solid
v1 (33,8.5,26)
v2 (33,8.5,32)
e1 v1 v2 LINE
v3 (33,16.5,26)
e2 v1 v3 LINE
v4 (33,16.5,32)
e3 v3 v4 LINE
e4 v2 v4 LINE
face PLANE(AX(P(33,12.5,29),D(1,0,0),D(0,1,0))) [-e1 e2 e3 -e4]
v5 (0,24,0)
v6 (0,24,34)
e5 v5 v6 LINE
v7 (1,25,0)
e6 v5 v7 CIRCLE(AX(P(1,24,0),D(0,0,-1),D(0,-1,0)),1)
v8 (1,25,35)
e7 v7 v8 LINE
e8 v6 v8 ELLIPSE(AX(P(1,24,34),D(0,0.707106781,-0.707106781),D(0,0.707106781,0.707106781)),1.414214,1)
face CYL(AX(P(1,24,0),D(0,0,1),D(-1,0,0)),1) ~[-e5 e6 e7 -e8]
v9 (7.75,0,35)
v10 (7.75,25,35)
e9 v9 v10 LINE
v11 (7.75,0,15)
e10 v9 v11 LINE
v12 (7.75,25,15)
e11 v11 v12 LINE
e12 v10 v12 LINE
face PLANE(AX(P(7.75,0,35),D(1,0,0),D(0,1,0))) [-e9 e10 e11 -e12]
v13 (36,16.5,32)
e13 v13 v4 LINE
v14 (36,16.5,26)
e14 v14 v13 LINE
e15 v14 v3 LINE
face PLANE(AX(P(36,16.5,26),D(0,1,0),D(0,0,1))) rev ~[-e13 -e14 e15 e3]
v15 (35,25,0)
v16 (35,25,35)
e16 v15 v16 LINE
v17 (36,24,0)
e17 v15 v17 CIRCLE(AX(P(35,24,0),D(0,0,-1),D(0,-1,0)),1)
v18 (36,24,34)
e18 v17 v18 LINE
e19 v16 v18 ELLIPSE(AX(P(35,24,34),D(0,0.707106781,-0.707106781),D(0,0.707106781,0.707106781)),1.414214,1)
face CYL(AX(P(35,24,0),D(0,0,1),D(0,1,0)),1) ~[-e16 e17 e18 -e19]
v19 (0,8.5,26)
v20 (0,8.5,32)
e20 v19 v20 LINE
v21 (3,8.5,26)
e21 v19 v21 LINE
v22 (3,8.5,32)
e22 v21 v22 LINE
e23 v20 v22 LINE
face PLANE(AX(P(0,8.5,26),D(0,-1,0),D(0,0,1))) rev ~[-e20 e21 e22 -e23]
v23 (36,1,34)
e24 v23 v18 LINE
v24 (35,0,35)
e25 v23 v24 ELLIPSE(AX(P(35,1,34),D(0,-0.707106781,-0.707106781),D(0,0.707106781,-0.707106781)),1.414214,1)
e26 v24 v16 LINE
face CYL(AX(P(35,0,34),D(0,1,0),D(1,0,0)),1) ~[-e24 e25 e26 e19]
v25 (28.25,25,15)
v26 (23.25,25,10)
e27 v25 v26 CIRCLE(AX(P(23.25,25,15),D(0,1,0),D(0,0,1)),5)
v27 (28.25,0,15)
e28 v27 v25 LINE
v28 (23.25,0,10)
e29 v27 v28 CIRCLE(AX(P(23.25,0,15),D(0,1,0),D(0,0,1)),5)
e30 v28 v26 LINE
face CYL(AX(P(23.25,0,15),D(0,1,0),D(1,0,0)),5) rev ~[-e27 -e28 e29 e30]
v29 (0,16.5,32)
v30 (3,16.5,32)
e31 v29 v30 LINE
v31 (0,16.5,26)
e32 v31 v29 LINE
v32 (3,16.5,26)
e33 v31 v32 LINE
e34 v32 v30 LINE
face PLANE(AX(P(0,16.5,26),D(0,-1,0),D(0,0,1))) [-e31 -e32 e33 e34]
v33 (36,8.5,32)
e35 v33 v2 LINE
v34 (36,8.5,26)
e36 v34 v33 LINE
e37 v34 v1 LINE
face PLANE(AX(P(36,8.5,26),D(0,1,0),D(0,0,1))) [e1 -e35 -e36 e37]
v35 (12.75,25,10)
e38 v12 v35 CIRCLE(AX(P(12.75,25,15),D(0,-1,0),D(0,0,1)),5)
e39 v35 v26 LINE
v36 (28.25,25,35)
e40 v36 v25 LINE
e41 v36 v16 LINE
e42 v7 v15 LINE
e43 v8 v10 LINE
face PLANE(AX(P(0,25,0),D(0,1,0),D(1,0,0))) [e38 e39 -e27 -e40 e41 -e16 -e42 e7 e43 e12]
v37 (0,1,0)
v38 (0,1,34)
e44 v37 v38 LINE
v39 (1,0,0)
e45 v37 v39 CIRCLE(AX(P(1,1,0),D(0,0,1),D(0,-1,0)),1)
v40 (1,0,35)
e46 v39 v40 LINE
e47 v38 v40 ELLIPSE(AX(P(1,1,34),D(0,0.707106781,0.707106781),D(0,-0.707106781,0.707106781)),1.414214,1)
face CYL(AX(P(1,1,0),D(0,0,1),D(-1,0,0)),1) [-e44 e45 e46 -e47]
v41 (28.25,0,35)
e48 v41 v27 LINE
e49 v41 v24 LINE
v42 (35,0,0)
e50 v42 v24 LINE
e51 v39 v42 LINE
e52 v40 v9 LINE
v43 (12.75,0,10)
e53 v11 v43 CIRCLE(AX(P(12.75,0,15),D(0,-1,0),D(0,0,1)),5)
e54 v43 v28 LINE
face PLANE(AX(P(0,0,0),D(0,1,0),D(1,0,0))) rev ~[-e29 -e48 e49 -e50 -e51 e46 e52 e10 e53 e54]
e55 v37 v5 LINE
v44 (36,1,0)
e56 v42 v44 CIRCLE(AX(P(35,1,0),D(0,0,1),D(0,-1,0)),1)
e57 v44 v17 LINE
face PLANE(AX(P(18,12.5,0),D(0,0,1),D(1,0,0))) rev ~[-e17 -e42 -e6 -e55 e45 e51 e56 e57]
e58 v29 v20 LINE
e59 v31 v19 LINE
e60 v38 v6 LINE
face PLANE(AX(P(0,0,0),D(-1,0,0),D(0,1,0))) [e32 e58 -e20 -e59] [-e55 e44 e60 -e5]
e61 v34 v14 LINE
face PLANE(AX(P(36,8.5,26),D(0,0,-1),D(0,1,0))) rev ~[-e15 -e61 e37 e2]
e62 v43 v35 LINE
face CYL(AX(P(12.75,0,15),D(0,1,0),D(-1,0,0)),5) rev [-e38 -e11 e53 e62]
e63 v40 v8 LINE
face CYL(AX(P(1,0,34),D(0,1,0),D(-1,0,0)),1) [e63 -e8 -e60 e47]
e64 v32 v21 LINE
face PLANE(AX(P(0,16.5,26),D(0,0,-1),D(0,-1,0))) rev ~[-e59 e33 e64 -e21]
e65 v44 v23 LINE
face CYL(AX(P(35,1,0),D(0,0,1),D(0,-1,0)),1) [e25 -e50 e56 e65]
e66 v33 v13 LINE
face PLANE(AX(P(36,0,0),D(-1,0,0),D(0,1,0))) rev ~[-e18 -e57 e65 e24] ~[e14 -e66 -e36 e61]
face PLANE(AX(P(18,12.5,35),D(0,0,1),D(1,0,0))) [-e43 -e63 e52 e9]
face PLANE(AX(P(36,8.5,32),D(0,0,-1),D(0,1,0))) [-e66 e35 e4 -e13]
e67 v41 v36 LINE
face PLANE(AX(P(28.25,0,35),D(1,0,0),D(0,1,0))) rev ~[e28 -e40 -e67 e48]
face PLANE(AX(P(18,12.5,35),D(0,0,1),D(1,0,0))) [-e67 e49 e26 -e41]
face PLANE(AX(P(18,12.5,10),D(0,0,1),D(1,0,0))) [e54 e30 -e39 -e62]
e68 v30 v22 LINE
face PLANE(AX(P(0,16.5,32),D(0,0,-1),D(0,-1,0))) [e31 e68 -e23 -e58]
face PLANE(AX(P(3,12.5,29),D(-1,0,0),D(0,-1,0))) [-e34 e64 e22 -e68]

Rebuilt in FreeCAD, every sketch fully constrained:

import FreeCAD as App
import Part
import Sketcher
from FreeCAD import Vector


def edges_at(feature, points):
    """Names of the edges that pass closest to the given points."""
    edges = feature.Shape.Edges
    near = lambda p: min(range(len(edges)), key=lambda i: edges[i].distToShape(Part.Vertex(*p))[0])
    return sorted({f"Edge{near(p) + 1}" for p in points})

doc = App.newDocument("Part")
params = doc.addObject("Spreadsheet::Sheet", "Params")
for row, (alias, value) in enumerate([
    ("sketch1_width", "36 mm"),
    ("sketch1_height", "25 mm"),
    ("pad1_length", "35 mm"),
    ("sketch2_height", "25 mm"),
    ("sketch2_width", "20.5 mm"),
    ("pocket1_length", "25 mm"),
    ("fillet_radius", "1 mm"),
    ("fillet2_radius", "5 mm"),
    ("sketch3_width", "8 mm"),
    ("sketch3_height", "6 mm"),
    ("pocket2_length", "3 mm"),
    ("sketch4_width", "8 mm"),
    ("sketch4_height", "6 mm"),
    ("pocket3_length", "3 mm"),
], start=1):
    params.set(f"A{row}", alias)
    params.set(f"B{row}", "=" + value)
    params.setAlias(f"B{row}", alias)

body = doc.addObject("PartDesign::Body", "Body")

# Sketch on XY plane
sketch1 = body.newObject("Sketcher::SketchObject", "Sketch")
sketch1.AttachmentSupport = (doc.getObject("XY_Plane"), [""])
sketch1.MapMode = "FlatFace"
sketch1.addGeometry([
    Part.LineSegment(Vector(0, 25, 0), Vector(0, 0, 0)),
    Part.LineSegment(Vector(0, 0, 0), Vector(36, 0, 0)),
    Part.LineSegment(Vector(36, 0, 0), Vector(36, 25, 0)),
    Part.LineSegment(Vector(36, 25, 0), Vector(0, 25, 0)),
], False)
sketch1.addConstraint([
    Sketcher.Constraint("Coincident", 0, 2, 1, 1),
    Sketcher.Constraint("Coincident", 1, 2, 2, 1),
    Sketcher.Constraint("Coincident", 2, 2, 3, 1),
    Sketcher.Constraint("Coincident", 3, 2, 0, 1),
    Sketcher.Constraint("Vertical", 0),
    Sketcher.Constraint("Horizontal", 1),
    Sketcher.Constraint("Vertical", 2),
    Sketcher.Constraint("Horizontal", 3),
    Sketcher.Constraint("Coincident", 0, 2, -1, 1),
    Sketcher.Constraint("DistanceX", 1, 1, 1, 2, 36.0),
    Sketcher.Constraint("DistanceY", 0, 2, 0, 1, 25.0),
])
sketch1.setExpression("Constraints[9]", "Params.sketch1_width")
sketch1.setExpression("Constraints[10]", "Params.sketch1_height")
pad1 = body.newObject("PartDesign::Pad", "Pad")
pad1.Profile = sketch1
pad1.setExpression("Length", "Params.pad1_length")

# Sketch on XY plane
sketch2 = body.newObject("Sketcher::SketchObject", "Sketch001")
sketch2.AttachmentSupport = (doc.getObject("XY_Plane"), [""])
sketch2.MapMode = "FlatFace"
sketch2.AttachmentOffset = App.Placement(Vector(0, 0, 35), App.Rotation())
sketch2.addGeometry([
    Part.LineSegment(Vector(8, 25, 0), Vector(8, 0, 0)),
    Part.LineSegment(Vector(8, 0, 0), Vector(28, 0, 0)),
    Part.LineSegment(Vector(28, 0, 0), Vector(28, 25, 0)),
    Part.LineSegment(Vector(28, 25, 0), Vector(8, 25, 0)),
], False)
sketch2.addConstraint([
    Sketcher.Constraint("Coincident", 0, 2, 1, 1),
    Sketcher.Constraint("Coincident", 1, 2, 2, 1),
    Sketcher.Constraint("Coincident", 2, 2, 3, 1),
    Sketcher.Constraint("Coincident", 3, 2, 0, 1),
    Sketcher.Constraint("Vertical", 0),
    Sketcher.Constraint("Horizontal", 1),
    Sketcher.Constraint("Vertical", 2),
    Sketcher.Constraint("Horizontal", 3),
    Sketcher.Constraint("PointOnObject", 0, 2, -1),
    Sketcher.Constraint("DistanceY", 0, 2, 0, 1, 25.0),
    Sketcher.Constraint("DistanceX", 1, 1, 1, 2, 20.5),
    Sketcher.Constraint("DistanceX", -1, 1, 0, 2, 7.75),
])
sketch2.setExpression("Constraints[9]", "Params.sketch2_height")
sketch2.setExpression("Constraints[10]", "Params.sketch2_width")
pocket1 = body.newObject("PartDesign::Pocket", "Pocket")
pocket1.Profile = sketch2
pocket1.setExpression("Length", "Params.pocket1_length")
doc.recompute()

fillet = body.newObject("PartDesign::Fillet", "Fillet")
fillet.Base = (pocket1, edges_at(pocket1, [
    (0, 0, 17.5),
    (0, 12.5, 35),
    (0, 25, 17.5),
    (36, 25, 17.5),
    (36, 12.5, 35),
    (36, 0, 17.5),
]))
fillet.setExpression("Radius", "Params.fillet_radius")
doc.recompute()

fillet2 = body.newObject("PartDesign::Fillet", "Fillet001")
fillet2.Base = (fillet, edges_at(fillet, [(7.75, 12.5, 10), (28.25, 12.5, 10)]))
fillet2.setExpression("Radius", "Params.fillet2_radius")

# Sketch on YZ plane
sketch3 = body.newObject("Sketcher::SketchObject", "Sketch002")
sketch3.AttachmentSupport = (doc.getObject("YZ_Plane"), [""])
sketch3.MapMode = "FlatFace"
sketch3.addGeometry([
    Part.LineSegment(Vector(16, 32, 0), Vector(16, 26, 0)),
    Part.LineSegment(Vector(16, 26, 0), Vector(8, 26, 0)),
    Part.LineSegment(Vector(8, 26, 0), Vector(8, 32, 0)),
    Part.LineSegment(Vector(8, 32, 0), Vector(16, 32, 0)),
], False)
sketch3.addConstraint([
    Sketcher.Constraint("Coincident", 0, 2, 1, 1),
    Sketcher.Constraint("Coincident", 1, 2, 2, 1),
    Sketcher.Constraint("Coincident", 2, 2, 3, 1),
    Sketcher.Constraint("Coincident", 3, 2, 0, 1),
    Sketcher.Constraint("Vertical", 0),
    Sketcher.Constraint("Horizontal", 1),
    Sketcher.Constraint("Vertical", 2),
    Sketcher.Constraint("Horizontal", 3),
    Sketcher.Constraint("DistanceX", 1, 2, 1, 1, 8.0),
    Sketcher.Constraint("DistanceY", 0, 2, 0, 1, 6.0),
    Sketcher.Constraint("DistanceY", -1, 1, 0, 2, 26.0),
    Sketcher.Constraint("DistanceX", -1, 1, 0, 2, 16.5),
])
sketch3.setExpression("Constraints[8]", "Params.sketch3_width")
sketch3.setExpression("Constraints[9]", "Params.sketch3_height")
pocket2 = body.newObject("PartDesign::Pocket", "Pocket001")
pocket2.Profile = sketch3
pocket2.setExpression("Length", "Params.pocket2_length")
pocket2.Reversed = True

# Sketch on YZ plane
sketch4 = body.newObject("Sketcher::SketchObject", "Sketch003")
sketch4.AttachmentSupport = (doc.getObject("YZ_Plane"), [""])
sketch4.MapMode = "FlatFace"
sketch4.AttachmentOffset = App.Placement(Vector(0, 0, 36), App.Rotation())
sketch4.addGeometry([
    Part.LineSegment(Vector(8, 32, 0), Vector(8, 26, 0)),
    Part.LineSegment(Vector(8, 26, 0), Vector(16, 26, 0)),
    Part.LineSegment(Vector(16, 26, 0), Vector(16, 32, 0)),
    Part.LineSegment(Vector(16, 32, 0), Vector(8, 32, 0)),
], False)
sketch4.addConstraint([
    Sketcher.Constraint("Coincident", 0, 2, 1, 1),
    Sketcher.Constraint("Coincident", 1, 2, 2, 1),
    Sketcher.Constraint("Coincident", 2, 2, 3, 1),
    Sketcher.Constraint("Coincident", 3, 2, 0, 1),
    Sketcher.Constraint("Vertical", 0),
    Sketcher.Constraint("Horizontal", 1),
    Sketcher.Constraint("Vertical", 2),
    Sketcher.Constraint("Horizontal", 3),
    Sketcher.Constraint("DistanceX", 1, 1, 1, 2, 8.0),
    Sketcher.Constraint("DistanceY", 0, 2, 0, 1, 6.0),
    Sketcher.Constraint("DistanceY", -1, 1, 0, 2, 26.0),
    Sketcher.Constraint("DistanceX", -1, 1, 0, 2, 8.5),
])
sketch4.setExpression("Constraints[8]", "Params.sketch4_width")
sketch4.setExpression("Constraints[9]", "Params.sketch4_height")
pocket3 = body.newObject("PartDesign::Pocket", "Pocket002")
pocket3.Profile = sketch4
pocket3.setExpression("Length", "Params.pocket3_length")

doc.recompute()
